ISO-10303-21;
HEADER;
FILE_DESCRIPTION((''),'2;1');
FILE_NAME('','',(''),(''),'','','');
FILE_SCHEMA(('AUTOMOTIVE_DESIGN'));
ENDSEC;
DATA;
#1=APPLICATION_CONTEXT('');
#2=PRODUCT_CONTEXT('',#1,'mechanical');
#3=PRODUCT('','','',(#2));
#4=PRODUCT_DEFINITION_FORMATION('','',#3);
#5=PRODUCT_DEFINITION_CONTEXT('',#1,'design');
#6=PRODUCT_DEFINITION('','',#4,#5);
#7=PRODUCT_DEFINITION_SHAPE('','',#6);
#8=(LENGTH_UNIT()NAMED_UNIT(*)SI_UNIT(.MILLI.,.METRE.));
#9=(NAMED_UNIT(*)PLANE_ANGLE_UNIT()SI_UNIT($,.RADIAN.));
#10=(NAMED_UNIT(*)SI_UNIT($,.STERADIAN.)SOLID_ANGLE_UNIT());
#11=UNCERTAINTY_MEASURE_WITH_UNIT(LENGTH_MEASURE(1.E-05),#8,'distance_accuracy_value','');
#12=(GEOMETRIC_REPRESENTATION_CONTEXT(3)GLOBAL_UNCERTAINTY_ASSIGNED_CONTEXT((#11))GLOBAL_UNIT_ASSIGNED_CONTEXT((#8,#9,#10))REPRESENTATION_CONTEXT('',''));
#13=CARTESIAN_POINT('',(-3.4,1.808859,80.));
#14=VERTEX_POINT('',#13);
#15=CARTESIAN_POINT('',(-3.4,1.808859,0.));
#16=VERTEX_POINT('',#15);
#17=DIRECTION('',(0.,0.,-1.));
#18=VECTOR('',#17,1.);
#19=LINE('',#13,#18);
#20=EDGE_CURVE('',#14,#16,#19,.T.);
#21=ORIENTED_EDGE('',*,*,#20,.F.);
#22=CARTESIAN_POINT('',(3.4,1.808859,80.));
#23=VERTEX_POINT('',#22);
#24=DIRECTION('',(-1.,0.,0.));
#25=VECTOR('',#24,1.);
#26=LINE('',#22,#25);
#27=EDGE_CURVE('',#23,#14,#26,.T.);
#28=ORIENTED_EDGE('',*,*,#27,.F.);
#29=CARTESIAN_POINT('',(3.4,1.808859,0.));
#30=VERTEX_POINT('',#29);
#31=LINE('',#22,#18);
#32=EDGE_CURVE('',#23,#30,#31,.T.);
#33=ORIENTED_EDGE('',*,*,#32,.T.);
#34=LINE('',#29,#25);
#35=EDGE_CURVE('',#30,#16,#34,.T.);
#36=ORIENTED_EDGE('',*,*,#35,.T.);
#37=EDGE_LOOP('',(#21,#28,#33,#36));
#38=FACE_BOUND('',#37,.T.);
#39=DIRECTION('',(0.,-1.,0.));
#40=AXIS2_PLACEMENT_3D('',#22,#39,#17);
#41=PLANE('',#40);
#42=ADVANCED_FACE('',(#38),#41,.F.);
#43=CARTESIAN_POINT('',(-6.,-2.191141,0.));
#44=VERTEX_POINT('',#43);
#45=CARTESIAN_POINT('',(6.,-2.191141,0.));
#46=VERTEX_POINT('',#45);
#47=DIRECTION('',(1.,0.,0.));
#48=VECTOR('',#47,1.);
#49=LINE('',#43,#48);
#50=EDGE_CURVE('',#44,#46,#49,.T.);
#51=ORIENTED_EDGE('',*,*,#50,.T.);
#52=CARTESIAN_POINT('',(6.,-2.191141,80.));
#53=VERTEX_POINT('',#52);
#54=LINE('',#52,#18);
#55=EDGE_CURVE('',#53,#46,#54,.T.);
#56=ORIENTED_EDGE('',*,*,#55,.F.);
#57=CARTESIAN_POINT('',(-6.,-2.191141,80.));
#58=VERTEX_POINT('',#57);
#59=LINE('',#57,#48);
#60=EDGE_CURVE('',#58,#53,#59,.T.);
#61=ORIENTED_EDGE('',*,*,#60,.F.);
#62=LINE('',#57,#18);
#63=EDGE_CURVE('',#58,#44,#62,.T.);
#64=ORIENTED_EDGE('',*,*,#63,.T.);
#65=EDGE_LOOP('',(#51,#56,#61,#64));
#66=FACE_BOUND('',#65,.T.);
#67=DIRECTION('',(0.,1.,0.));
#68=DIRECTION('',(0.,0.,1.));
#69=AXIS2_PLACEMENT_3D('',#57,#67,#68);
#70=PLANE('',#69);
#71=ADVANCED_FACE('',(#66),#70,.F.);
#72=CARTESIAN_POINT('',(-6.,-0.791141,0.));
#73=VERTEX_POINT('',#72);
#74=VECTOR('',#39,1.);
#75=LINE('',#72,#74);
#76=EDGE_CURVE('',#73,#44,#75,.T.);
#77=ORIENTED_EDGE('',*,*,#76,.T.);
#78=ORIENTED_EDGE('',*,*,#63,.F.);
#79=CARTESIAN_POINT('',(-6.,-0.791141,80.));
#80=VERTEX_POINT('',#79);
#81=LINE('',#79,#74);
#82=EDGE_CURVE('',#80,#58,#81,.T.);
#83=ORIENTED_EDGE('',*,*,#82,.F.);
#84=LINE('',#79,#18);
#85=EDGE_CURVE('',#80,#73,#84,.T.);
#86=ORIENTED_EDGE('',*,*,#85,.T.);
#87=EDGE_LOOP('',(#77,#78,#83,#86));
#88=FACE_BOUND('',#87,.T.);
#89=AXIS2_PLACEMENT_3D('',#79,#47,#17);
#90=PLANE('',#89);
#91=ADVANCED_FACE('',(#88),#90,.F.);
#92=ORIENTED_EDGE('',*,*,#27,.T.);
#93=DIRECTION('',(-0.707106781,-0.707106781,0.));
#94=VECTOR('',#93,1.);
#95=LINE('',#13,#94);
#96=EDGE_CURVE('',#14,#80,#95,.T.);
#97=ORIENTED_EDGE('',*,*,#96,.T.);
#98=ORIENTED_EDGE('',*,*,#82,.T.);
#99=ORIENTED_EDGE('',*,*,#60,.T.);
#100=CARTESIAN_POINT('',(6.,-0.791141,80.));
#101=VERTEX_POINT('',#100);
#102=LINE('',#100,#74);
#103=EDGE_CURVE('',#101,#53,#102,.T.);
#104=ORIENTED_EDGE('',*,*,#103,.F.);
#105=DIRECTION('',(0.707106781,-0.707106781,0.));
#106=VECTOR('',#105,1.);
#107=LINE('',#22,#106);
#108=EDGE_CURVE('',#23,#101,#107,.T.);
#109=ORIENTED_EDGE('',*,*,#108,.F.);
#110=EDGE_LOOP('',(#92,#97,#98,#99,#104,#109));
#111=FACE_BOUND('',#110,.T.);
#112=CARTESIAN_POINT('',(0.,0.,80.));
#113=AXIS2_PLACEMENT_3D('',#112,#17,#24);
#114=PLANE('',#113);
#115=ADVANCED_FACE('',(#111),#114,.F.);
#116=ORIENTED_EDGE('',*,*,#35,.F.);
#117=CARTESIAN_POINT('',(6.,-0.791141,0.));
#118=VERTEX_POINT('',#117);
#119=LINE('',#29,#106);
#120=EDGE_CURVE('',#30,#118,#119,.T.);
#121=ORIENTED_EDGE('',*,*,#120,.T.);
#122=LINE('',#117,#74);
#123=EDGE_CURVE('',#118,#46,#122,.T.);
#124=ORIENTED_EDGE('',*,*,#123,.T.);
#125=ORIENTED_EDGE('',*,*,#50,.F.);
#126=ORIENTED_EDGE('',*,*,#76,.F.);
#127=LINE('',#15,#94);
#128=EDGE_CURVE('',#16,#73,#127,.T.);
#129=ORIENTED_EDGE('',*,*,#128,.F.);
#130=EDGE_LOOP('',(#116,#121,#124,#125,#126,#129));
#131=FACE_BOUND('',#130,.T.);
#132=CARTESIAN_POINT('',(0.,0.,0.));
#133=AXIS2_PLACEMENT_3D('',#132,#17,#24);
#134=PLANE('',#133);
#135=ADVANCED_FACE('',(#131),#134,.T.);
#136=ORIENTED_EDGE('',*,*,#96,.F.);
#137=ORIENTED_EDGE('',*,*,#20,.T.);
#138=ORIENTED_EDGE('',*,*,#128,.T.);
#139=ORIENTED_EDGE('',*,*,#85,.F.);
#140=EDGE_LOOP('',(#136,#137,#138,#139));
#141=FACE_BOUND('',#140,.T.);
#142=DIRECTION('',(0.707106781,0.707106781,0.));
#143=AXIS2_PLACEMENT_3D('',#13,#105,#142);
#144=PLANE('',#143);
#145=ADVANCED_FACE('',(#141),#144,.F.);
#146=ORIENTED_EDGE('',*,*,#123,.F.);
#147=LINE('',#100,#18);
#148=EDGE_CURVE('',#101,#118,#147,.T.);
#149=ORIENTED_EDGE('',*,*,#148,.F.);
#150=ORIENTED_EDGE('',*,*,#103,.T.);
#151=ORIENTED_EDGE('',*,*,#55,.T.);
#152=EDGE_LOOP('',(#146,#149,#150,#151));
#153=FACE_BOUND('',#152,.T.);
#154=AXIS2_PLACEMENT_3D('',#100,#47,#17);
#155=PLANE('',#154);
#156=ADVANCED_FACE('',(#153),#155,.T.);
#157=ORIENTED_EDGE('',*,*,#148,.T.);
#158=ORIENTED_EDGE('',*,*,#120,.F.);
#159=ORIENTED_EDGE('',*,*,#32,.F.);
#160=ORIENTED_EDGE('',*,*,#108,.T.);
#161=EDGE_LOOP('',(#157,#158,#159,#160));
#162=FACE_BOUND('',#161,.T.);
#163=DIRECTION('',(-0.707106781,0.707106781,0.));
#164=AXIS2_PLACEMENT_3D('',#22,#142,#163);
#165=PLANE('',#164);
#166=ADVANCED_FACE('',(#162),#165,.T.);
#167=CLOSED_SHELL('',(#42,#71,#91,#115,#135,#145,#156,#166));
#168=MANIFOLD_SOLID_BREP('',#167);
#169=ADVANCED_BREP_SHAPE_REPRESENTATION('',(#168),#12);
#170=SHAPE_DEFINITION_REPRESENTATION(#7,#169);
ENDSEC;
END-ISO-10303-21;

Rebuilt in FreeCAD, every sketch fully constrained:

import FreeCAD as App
import Part
import Sketcher

V = App.Vector

doc = App.newDocument("Part")
body = doc.addObject("PartDesign::Body", "Body")

sketch1 = doc.addObject("Sketcher::SketchObject", "Sketch")
body.addObject(sketch1)
sketch1.AttachmentSupport = (doc.XY_Plane, [""])
sketch1.MapMode = "FlatFace"
sketch1.addGeometry(Part.LineSegment(V(3.4, 1.8, 0), V(-3.4, 1.8, 0)), False)
sketch1.addGeometry(Part.LineSegment(V(-3.4, 1.8, 0), V(-6, -0.8, 0)), False)
sketch1.addGeometry(Part.LineSegment(V(-6, -0.8, 0), V(-6, -2.2, 0)), False)
sketch1.addGeometry(Part.LineSegment(V(-6, -2.2, 0), V(6, -2.2, 0)), False)
sketch1.addGeometry(Part.LineSegment(V(6, -2.2, 0), V(6, -0.8, 0)), False)
sketch1.addGeometry(Part.LineSegment(V(6, -0.8, 0), V(3.4, 1.8, 0)), False)
sketch1.addConstraint(Sketcher.Constraint("Coincident", 0, 2, 1, 1))
sketch1.addConstraint(Sketcher.Constraint("Coincident", 1, 2, 2, 1))
sketch1.addConstraint(Sketcher.Constraint("Coincident", 2, 2, 3, 1))
sketch1.addConstraint(Sketcher.Constraint("Coincident", 3, 2, 4, 1))
sketch1.addConstraint(Sketcher.Constraint("Coincident", 4, 2, 5, 1))
sketch1.addConstraint(Sketcher.Constraint("Coincident", 5, 2, 0, 1))
sketch1.addConstraint(Sketcher.Constraint("Horizontal", 0))
sketch1.addConstraint(Sketcher.Constraint("Vertical", 2))
sketch1.addConstraint(Sketcher.Constraint("Horizontal", 3))
sketch1.addConstraint(Sketcher.Constraint("Vertical", 4))
sketch1.addConstraint(Sketcher.Constraint("Symmetric", 1, 2, 4, 2, -2))
sketch1.addConstraint(Sketcher.Constraint("Perpendicular", 1, 5))
sketch1.addConstraint(Sketcher.Constraint("Equal", 1, 5))
sketch1.addConstraint(Sketcher.Constraint("DistanceX", 3, 1, 3, 2, 12.0))
sketch1.addConstraint(Sketcher.Constraint("DistanceX", 0, 2, 0, 1, 6.8))
sketch1.addConstraint(Sketcher.Constraint("DistanceY", 2, 2, 2, 1, 1.4))
sketch1.addConstraint(Sketcher.Constraint("DistanceY", -1, 1, 0, 2, 1.808859))
pad1 = doc.addObject("PartDesign::Pad", "Pad")
body.addObject(pad1)
pad1.Profile = sketch1
pad1.Length = 80

doc.recompute()
